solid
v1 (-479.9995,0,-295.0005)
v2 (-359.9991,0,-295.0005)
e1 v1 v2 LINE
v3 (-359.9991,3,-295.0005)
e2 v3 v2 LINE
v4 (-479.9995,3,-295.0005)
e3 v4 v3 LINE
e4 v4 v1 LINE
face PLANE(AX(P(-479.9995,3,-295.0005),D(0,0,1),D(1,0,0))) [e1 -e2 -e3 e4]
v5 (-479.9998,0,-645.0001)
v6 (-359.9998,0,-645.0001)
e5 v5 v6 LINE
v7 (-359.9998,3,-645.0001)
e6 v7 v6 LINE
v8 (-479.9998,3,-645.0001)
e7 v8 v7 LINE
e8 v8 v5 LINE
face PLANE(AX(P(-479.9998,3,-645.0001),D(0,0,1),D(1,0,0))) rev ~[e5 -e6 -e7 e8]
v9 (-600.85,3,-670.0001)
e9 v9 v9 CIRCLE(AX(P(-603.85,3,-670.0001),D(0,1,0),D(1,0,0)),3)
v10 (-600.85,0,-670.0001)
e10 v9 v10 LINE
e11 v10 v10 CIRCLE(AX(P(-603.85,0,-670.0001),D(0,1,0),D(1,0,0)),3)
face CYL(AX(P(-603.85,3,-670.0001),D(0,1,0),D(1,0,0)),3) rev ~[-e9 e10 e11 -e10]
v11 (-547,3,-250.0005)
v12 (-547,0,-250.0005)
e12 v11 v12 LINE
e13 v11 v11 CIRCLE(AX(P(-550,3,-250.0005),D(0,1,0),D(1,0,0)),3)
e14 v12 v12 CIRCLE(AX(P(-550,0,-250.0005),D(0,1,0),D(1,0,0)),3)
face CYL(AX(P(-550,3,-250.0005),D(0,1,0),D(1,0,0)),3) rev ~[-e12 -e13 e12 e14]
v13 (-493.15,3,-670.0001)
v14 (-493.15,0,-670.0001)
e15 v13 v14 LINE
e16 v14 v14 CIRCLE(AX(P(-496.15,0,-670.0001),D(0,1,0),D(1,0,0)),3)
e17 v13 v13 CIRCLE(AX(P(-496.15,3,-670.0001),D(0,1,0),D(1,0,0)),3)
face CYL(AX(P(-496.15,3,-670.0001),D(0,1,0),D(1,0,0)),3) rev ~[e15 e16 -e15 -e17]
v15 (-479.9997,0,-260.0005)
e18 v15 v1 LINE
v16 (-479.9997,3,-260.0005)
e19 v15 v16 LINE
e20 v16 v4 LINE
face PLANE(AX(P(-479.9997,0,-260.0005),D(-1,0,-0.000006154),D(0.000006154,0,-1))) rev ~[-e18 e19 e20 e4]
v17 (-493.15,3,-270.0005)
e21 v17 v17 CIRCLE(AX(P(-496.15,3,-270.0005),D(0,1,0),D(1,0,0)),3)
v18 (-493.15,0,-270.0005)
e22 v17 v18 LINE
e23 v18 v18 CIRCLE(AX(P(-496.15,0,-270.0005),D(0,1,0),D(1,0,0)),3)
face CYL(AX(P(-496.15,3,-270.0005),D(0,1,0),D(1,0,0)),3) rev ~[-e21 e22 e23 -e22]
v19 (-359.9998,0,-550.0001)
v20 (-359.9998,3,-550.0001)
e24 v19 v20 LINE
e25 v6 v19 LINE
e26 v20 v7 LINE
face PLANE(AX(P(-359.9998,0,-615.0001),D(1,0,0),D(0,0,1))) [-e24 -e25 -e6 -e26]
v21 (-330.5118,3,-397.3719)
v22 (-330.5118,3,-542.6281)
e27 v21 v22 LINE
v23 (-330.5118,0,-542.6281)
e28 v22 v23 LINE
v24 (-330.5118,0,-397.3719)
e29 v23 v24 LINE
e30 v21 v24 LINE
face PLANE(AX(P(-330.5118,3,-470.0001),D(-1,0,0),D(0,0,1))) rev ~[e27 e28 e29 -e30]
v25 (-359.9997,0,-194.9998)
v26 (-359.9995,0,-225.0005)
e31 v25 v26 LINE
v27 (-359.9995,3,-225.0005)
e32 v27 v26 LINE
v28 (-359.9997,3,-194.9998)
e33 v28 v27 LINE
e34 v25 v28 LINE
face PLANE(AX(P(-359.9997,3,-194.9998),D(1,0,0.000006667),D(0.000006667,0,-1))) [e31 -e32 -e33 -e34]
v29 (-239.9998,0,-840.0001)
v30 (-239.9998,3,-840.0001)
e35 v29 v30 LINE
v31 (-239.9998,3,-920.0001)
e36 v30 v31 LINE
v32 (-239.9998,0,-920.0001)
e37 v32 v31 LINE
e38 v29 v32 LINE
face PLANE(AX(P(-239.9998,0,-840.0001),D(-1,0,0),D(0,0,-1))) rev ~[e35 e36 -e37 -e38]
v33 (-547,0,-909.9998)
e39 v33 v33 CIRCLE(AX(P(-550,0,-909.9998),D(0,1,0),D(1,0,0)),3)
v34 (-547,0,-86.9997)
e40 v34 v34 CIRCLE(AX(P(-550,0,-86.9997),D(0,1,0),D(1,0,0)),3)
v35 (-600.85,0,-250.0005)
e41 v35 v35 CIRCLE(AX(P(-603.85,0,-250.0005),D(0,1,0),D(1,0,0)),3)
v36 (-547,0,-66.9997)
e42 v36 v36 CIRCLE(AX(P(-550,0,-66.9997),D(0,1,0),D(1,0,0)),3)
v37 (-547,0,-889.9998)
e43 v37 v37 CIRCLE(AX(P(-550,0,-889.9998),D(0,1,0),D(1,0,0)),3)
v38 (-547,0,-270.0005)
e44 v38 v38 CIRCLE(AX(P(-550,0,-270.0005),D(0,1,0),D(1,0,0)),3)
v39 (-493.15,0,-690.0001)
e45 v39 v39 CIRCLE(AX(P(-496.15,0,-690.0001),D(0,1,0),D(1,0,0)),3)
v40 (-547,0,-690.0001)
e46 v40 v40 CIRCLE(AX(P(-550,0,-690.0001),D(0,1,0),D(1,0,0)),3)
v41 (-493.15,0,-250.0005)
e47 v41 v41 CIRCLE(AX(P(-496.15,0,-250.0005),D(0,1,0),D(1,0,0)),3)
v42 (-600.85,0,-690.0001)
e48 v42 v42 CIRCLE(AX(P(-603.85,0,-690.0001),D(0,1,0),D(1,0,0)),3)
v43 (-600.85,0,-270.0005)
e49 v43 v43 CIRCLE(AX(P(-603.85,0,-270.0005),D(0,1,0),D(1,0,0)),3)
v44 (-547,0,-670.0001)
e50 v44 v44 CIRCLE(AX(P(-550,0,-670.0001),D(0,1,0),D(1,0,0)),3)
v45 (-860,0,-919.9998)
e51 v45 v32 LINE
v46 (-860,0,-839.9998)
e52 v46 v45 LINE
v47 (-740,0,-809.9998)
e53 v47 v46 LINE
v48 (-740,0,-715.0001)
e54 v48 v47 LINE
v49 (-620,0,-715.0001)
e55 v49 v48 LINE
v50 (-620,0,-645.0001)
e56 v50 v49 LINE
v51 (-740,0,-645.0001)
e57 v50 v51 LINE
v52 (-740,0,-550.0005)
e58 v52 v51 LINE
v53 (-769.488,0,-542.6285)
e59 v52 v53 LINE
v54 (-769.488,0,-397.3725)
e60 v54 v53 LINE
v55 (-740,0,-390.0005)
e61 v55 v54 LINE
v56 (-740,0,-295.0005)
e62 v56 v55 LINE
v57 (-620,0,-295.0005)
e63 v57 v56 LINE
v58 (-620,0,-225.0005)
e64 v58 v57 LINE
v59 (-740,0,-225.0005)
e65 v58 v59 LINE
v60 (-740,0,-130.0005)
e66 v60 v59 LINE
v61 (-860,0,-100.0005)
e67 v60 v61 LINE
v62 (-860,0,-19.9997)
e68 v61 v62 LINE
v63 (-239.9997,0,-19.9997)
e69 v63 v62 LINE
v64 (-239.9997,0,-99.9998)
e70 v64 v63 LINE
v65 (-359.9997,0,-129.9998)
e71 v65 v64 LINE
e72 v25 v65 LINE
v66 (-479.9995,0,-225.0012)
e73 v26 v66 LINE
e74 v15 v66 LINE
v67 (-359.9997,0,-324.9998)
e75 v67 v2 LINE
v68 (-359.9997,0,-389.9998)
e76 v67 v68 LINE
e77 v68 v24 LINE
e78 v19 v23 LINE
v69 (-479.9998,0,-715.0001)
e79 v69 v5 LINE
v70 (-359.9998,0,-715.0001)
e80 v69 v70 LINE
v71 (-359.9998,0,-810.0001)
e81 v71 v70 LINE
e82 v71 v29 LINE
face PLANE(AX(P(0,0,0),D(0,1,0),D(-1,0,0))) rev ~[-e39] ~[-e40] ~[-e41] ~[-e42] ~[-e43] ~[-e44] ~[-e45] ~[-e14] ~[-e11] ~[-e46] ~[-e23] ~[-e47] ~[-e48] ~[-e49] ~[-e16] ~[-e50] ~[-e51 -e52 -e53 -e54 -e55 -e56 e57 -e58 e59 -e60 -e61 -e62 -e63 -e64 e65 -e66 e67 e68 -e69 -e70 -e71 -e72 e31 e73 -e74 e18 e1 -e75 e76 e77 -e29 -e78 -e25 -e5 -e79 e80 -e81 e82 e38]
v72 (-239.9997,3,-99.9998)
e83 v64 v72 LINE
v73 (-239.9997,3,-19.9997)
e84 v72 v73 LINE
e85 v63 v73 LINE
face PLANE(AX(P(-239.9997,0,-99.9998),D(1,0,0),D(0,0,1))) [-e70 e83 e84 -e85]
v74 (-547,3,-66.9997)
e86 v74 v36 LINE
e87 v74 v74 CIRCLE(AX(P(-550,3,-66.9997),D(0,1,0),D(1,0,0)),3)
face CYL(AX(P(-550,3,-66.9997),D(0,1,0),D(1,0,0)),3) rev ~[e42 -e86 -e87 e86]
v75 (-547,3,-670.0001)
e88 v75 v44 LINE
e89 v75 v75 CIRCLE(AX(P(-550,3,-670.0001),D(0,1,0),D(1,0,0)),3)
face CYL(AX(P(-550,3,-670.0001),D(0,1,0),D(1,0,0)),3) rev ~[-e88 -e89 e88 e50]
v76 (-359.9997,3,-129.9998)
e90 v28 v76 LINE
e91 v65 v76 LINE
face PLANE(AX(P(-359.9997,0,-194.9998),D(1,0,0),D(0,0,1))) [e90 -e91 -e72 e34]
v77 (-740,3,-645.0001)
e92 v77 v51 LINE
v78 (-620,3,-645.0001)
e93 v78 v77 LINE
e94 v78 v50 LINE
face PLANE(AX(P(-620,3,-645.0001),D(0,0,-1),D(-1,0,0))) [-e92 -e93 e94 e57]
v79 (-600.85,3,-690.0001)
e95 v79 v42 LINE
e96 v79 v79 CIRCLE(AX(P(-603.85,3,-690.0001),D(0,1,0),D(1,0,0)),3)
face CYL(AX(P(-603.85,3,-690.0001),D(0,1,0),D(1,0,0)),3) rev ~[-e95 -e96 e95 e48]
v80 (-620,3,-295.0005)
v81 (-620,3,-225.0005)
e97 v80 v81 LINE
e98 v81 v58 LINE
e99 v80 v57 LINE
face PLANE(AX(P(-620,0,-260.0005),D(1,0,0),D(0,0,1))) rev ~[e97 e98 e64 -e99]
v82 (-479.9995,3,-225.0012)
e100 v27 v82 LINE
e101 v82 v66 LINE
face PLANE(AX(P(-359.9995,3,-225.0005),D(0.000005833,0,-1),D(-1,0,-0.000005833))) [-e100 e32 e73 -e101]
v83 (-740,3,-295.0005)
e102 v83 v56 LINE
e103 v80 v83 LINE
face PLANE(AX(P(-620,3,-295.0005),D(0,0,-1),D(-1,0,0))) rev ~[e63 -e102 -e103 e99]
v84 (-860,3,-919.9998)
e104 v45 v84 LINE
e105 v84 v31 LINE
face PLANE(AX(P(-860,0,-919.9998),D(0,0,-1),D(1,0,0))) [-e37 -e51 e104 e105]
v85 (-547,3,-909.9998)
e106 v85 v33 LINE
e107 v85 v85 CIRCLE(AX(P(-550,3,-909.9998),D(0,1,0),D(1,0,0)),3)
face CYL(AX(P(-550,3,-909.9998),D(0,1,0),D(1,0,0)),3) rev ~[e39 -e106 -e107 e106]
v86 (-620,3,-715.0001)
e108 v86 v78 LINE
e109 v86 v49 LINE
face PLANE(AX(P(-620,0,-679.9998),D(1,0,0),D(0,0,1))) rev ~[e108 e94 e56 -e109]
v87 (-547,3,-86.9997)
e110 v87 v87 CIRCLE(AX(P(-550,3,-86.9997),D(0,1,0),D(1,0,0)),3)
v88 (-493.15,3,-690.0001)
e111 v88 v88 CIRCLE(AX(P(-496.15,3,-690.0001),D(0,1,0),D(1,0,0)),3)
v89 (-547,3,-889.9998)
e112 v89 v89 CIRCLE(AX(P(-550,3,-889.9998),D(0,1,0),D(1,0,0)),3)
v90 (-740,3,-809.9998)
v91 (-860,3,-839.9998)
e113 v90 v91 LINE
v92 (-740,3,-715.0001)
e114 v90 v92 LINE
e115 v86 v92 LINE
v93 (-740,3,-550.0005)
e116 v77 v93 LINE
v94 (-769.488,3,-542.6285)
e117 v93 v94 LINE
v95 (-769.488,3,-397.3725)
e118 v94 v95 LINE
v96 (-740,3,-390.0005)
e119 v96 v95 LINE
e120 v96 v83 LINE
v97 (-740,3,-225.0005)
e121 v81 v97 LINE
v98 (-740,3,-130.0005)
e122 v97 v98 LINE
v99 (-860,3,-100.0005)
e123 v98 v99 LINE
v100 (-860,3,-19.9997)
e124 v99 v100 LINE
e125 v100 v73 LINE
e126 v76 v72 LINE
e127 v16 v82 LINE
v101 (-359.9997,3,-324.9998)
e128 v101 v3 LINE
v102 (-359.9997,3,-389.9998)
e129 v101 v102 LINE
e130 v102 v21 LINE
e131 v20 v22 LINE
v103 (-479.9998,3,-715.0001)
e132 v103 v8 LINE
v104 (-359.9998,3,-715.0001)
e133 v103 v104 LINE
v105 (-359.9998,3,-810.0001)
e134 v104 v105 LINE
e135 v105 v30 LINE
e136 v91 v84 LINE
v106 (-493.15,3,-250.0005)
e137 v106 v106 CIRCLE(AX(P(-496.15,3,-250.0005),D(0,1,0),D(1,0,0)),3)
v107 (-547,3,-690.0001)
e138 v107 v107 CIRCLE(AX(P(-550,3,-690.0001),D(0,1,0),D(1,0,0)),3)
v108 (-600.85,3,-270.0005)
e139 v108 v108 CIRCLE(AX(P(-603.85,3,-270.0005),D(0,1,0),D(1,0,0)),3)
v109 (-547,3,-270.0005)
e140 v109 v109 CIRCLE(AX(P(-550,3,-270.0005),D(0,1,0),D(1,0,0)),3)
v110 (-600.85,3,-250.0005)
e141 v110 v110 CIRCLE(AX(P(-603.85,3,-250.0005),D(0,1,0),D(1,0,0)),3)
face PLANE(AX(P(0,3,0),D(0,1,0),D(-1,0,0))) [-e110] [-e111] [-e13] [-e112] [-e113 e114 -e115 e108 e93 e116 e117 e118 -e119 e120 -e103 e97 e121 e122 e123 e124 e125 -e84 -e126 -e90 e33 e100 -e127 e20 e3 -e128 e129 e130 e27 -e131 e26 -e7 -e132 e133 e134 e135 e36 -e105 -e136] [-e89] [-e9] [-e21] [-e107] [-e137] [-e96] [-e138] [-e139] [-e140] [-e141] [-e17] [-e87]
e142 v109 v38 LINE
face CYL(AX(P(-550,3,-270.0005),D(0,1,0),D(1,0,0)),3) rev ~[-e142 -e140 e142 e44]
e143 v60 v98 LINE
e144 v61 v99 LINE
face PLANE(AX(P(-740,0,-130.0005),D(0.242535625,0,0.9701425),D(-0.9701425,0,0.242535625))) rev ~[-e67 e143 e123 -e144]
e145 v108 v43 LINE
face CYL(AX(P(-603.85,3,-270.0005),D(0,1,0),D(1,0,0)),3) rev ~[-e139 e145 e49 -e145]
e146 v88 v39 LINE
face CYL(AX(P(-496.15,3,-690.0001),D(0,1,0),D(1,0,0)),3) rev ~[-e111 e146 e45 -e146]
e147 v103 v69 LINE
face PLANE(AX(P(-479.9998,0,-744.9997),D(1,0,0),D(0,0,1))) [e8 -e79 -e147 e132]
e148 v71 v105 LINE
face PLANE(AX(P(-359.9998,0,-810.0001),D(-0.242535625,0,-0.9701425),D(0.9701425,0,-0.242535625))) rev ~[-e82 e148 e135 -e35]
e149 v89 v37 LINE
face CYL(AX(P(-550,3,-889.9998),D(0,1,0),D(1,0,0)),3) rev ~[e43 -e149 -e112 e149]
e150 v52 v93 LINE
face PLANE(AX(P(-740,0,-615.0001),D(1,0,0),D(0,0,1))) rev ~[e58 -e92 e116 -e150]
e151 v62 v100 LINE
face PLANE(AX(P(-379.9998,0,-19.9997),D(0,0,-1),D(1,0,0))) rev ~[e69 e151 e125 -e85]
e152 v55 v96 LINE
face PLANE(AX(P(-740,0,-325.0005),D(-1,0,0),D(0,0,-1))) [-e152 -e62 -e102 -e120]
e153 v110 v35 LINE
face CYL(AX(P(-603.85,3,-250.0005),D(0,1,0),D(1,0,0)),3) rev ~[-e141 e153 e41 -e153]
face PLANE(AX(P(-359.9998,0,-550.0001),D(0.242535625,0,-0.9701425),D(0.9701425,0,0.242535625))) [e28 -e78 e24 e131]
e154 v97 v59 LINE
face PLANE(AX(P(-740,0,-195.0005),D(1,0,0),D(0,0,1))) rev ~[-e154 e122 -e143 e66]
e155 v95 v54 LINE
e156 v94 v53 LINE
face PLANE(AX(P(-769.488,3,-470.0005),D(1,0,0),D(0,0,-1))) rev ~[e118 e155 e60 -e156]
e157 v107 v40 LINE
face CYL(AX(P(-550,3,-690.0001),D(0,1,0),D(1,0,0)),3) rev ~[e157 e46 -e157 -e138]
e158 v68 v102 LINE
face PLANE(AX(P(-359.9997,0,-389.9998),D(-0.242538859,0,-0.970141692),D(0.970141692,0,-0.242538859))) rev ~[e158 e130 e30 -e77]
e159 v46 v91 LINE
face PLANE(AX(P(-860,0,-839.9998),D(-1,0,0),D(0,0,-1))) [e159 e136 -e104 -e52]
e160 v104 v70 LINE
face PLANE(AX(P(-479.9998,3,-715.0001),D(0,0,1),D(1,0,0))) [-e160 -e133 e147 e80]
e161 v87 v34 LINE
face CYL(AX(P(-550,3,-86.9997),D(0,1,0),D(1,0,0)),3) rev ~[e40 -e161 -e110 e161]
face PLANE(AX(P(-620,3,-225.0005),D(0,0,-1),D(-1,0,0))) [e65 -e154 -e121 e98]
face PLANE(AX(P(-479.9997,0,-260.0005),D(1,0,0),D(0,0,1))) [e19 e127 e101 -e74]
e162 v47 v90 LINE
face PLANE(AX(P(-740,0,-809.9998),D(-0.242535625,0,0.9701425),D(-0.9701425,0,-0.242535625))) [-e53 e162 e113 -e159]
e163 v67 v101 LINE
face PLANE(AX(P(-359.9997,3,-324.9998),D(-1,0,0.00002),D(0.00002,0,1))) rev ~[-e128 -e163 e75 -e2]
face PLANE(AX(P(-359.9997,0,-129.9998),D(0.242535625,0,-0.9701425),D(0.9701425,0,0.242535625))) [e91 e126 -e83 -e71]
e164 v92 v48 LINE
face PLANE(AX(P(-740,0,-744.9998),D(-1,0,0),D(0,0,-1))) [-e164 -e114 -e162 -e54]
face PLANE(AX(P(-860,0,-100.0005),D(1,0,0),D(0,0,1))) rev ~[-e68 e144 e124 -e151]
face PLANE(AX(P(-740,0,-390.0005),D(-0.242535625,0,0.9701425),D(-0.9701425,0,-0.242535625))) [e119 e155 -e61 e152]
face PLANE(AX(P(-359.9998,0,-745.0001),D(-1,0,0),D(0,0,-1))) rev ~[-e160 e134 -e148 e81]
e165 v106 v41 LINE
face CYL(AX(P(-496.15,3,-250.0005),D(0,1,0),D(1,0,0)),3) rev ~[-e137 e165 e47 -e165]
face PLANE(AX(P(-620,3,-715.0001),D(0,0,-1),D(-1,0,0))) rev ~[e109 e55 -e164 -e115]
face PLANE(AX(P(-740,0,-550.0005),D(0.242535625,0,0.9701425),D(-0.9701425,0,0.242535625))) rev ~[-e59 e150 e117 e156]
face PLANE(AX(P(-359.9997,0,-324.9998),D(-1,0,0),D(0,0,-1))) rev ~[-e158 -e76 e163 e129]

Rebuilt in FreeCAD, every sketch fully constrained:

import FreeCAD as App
import Part
import Sketcher
Q = App.Units.Quantity

doc = App.newDocument("Part")
body = doc.addObject("PartDesign::Body", "Body")

sketch1 = body.newObject("Sketcher::SketchObject", "Sketch")
sketch1.AttachmentSupport = (doc.getObject("XZ_Plane"), [""])
sketch1.MapMode = "FlatFace"
sketch1.addGeometry([
    Part.LineSegment(App.Vector(-480, -325, 0), App.Vector(-360, -325, 0)),
    Part.LineSegment(App.Vector(-360, -325, 0), App.Vector(-360, -390, 0)),
    Part.LineSegment(App.Vector(-360, -390, 0), App.Vector(-240, -420, 0)),
    Part.LineSegment(App.Vector(-240, -420, 0), App.Vector(-240, -520, 0)),
    Part.LineSegment(App.Vector(-240, -520, 0), App.Vector(-360, -550, 0)),
    Part.LineSegment(App.Vector(-360, -550, 0), App.Vector(-360, -615, 0)),
    Part.LineSegment(App.Vector(-360, -615, 0), App.Vector(-480, -615, 0)),
    Part.LineSegment(App.Vector(-480, -615, 0), App.Vector(-480, -745, 0)),
    Part.LineSegment(App.Vector(-480, -745, 0), App.Vector(-360, -745, 0)),
    Part.LineSegment(App.Vector(-360, -745, 0), App.Vector(-360, -810, 0)),
    Part.LineSegment(App.Vector(-360, -810, 0), App.Vector(-240, -840, 0)),
    Part.LineSegment(App.Vector(-240, -840, 0), App.Vector(-240, -920, 0)),
    Part.LineSegment(App.Vector(-240, -920, 0), App.Vector(-860, -920, 0)),
    Part.LineSegment(App.Vector(-860, -920, 0), App.Vector(-860, -840, 0)),
    Part.LineSegment(App.Vector(-860, -840, 0), App.Vector(-740, -810, 0)),
    Part.LineSegment(App.Vector(-740, -810, 0), App.Vector(-740, -745, 0)),
    Part.LineSegment(App.Vector(-740, -745, 0), App.Vector(-620, -745, 0)),
    Part.LineSegment(App.Vector(-620, -745, 0), App.Vector(-620, -615, 0)),
    Part.LineSegment(App.Vector(-620, -615, 0), App.Vector(-740, -615, 0)),
    Part.LineSegment(App.Vector(-740, -615, 0), App.Vector(-740, -550, 0)),
    Part.LineSegment(App.Vector(-740, -550, 0), App.Vector(-860, -520, 0)),
    Part.LineSegment(App.Vector(-860, -520, 0), App.Vector(-860, -420, 0)),
    Part.LineSegment(App.Vector(-860, -420, 0), App.Vector(-740, -390, 0)),
    Part.LineSegment(App.Vector(-740, -390, 0), App.Vector(-740, -325, 0)),
    Part.LineSegment(App.Vector(-740, -325, 0), App.Vector(-620, -325, 0)),
    Part.LineSegment(App.Vector(-620, -325, 0), App.Vector(-620, -195, 0)),
    Part.LineSegment(App.Vector(-620, -195, 0), App.Vector(-740, -195, 0)),
    Part.LineSegment(App.Vector(-740, -195, 0), App.Vector(-740, -130, 0)),
    Part.LineSegment(App.Vector(-740, -130, 0), App.Vector(-860, -100, 0)),
    Part.LineSegment(App.Vector(-860, -100, 0), App.Vector(-860, -20, 0)),
    Part.LineSegment(App.Vector(-860, -20, 0), App.Vector(-240, -20, 0)),
    Part.LineSegment(App.Vector(-240, -20, 0), App.Vector(-240, -100, 0)),
    Part.LineSegment(App.Vector(-240, -100, 0), App.Vector(-360, -130, 0)),
    Part.LineSegment(App.Vector(-360, -130, 0), App.Vector(-360, -195, 0)),
    Part.LineSegment(App.Vector(-360, -195, 0), App.Vector(-480, -195, 0)),
    Part.LineSegment(App.Vector(-480, -195, 0), App.Vector(-480, -260, 0)),
    Part.LineSegment(App.Vector(-480, -260, 0), App.Vector(-480, -325, 0)),
], False)
sketch1.addConstraint([
    Sketcher.Constraint("Coincident", 0, 2, 1, 1),
    Sketcher.Constraint("Coincident", 1, 2, 2, 1),
    Sketcher.Constraint("Coincident", 2, 2, 3, 1),
    Sketcher.Constraint("Coincident", 3, 2, 4, 1),
    Sketcher.Constraint("Coincident", 4, 2, 5, 1),
    Sketcher.Constraint("Coincident", 5, 2, 6, 1),
    Sketcher.Constraint("Coincident", 6, 2, 7, 1),
    Sketcher.Constraint("Coincident", 7, 2, 8, 1),
    Sketcher.Constraint("Coincident", 8, 2, 9, 1),
    Sketcher.Constraint("Coincident", 9, 2, 10, 1),
    Sketcher.Constraint("Coincident", 10, 2, 11, 1),
    Sketcher.Constraint("Coincident", 11, 2, 12, 1),
    Sketcher.Constraint("Coincident", 12, 2, 13, 1),
    Sketcher.Constraint("Coincident", 13, 2, 14, 1),
    Sketcher.Constraint("Coincident", 14, 2, 15, 1),
    Sketcher.Constraint("Coincident", 15, 2, 16, 1),
    Sketcher.Constraint("Coincident", 16, 2, 17, 1),
    Sketcher.Constraint("Coincident", 17, 2, 18, 1),
    Sketcher.Constraint("Coincident", 18, 2, 19, 1),
    Sketcher.Constraint("Coincident", 19, 2, 20, 1),
    Sketcher.Constraint("Coincident", 20, 2, 21, 1),
    Sketcher.Constraint("Coincident", 21, 2, 22, 1),
    Sketcher.Constraint("Coincident", 22, 2, 23, 1),
    Sketcher.Constraint("Coincident", 23, 2, 24, 1),
    Sketcher.Constraint("Coincident", 24, 2, 25, 1),
    Sketcher.Constraint("Coincident", 25, 2, 26, 1),
    Sketcher.Constraint("Coincident", 26, 2, 27, 1),
    Sketcher.Constraint("Coincident", 27, 2, 28, 1),
    Sketcher.Constraint("Coincident", 28, 2, 29, 1),
    Sketcher.Constraint("Coincident", 29, 2, 30, 1),
    Sketcher.Constraint("Coincident", 30, 2, 31, 1),
    Sketcher.Constraint("Coincident", 31, 2, 32, 1),
    Sketcher.Constraint("Coincident", 32, 2, 33, 1),
    Sketcher.Constraint("Coincident", 33, 2, 34, 1),
    Sketcher.Constraint("Coincident", 34, 2, 35, 1),
    Sketcher.Constraint("Coincident", 35, 2, 36, 1),
    Sketcher.Constraint("Coincident", 36, 2, 0, 1),
    Sketcher.Constraint("Vertical", 1),
    Sketcher.Constraint("Vertical", 3),
    Sketcher.Constraint("Vertical", 5),
    Sketcher.Constraint("Horizontal", 6),
    Sketcher.Constraint("Vertical", 7),
    Sketcher.Constraint("Vertical", 9),
    Sketcher.Constraint("Vertical", 11),
    Sketcher.Constraint("Horizontal", 12),
    Sketcher.Constraint("Vertical", 13),
    Sketcher.Constraint("Vertical", 15),
    Sketcher.Constraint("Vertical", 17),
    Sketcher.Constraint("Horizontal", 18),
    Sketcher.Constraint("Vertical", 19),
    Sketcher.Constraint("Vertical", 21),
    Sketcher.Constraint("Vertical", 23),
    Sketcher.Constraint("Horizontal", 24),
    Sketcher.Constraint("Vertical", 25),
    Sketcher.Constraint("Horizontal", 26),
    Sketcher.Constraint("Vertical", 27),
    Sketcher.Constraint("Vertical", 29),
    Sketcher.Constraint("Horizontal", 30),
    Sketcher.Constraint("Vertical", 31),
    Sketcher.Constraint("Vertical", 33),
    Sketcher.Constraint("Vertical", 35),
    Sketcher.Constraint("Parallel", 0, 8),
    Sketcher.Constraint("Parallel", 2, 10),
    Sketcher.Constraint("Parallel", 4, 14),
    Sketcher.Constraint("Parallel", 8, 16),
    Sketcher.Constraint("Parallel", 10, 20),
    Sketcher.Constraint("Parallel", 14, 22),
    Sketcher.Constraint("Parallel", 20, 28),
    Sketcher.Constraint("Parallel", 22, 32),
    Sketcher.Constraint("Parallel", 16, 34),
    Sketcher.Constraint("Perpendicular", 34, 36),
    Sketcher.Constraint("Horizontal", 7, 2, 15, 2),
    Sketcher.Constraint("Horizontal", 6, 2, 17, 2),
    Sketcher.Constraint("Horizontal", 26, 2, 34, 2),
    Sketcher.Constraint("Horizontal", 24, 2, 36, 2),
    Sketcher.Constraint("Vertical", 1, 2, 4, 2),
    Sketcher.Constraint("Vertical", 5, 2, 8, 2),
    Sketcher.Constraint("Vertical", 3, 2, 10, 2),
    Sketcher.Constraint("Vertical", 15, 2, 18, 2),
    Sketcher.Constraint("Vertical", 13, 2, 20, 2),
    Sketcher.Constraint("Vertical", 19, 2, 22, 2),
    Sketcher.Constraint("Vertical", 17, 2, 24, 2),
    Sketcher.Constraint("Vertical", 23, 2, 26, 2),
    Sketcher.Constraint("Vertical", 21, 2, 28, 2),
    Sketcher.Constraint("Vertical", 11, 2, 30, 2),
    Sketcher.Constraint("Vertical", 9, 2, 32, 2),
    Sketcher.Constraint("Vertical", 7, 2, 34, 2),
    Sketcher.Constraint("Equal", 6, 18),
    Sketcher.Constraint("Equal", 1, 5),
    Sketcher.Constraint("Equal", 5, 9),
    Sketcher.Constraint("Equal", 11, 13),
    Sketcher.Constraint("Equal", 9, 15),
    Sketcher.Constraint("Equal", 3, 21),
    Sketcher.Constraint("Equal", 15, 23),
    Sketcher.Constraint("Equal", 17, 25),
    Sketcher.Constraint("Equal", 23, 27),
    Sketcher.Constraint("Equal", 13, 31),
    Sketcher.Constraint("Equal", 27, 33),
    Sketcher.Constraint("Equal", 33, 35),
    Sketcher.Constraint("Equal", 2, 4),
    Sketcher.Constraint("Equal", 10, 14),
    Sketcher.Constraint("DistanceY", 11, 2, 11, 1, Q("3.1496 in")),
    Sketcher.Constraint("DistanceY", 1, 2, 1, 1, 65.0),
    Sketcher.Constraint("Distance", 36, 65.0),
    Sketcher.Constraint("DistanceY", 3, 2, 3, 1, Q("3.937 in")),
    Sketcher.Constraint("DistanceX", 6, 2, 6, 1, Q("4.7244 in")),
    Sketcher.Constraint("DistanceY", 31, 2, -1, 1, Q("3.937 in")),
    Sketcher.Constraint("Distance", 2, Q("4.8698 in")),
    Sketcher.Constraint("DistanceX", 12, 2, 12, 1, 620.0002),
    Sketcher.Constraint("DistanceX", 2, 2, -1, 1, Q("9.4488 in")),
    Sketcher.Constraint("DistanceY", 5, 2, -1, 1, Q("24.2126 in")),
])
pad1 = body.newObject("PartDesign::Pad", "Pad")
pad1.Profile = sketch1
pad1.Length = Q("0.1181102 in")
pad1.Reversed = True

sketch2 = body.newObject("Sketcher::SketchObject", "Sketch001")
sketch2.AttachmentSupport = (doc.getObject("XZ_Plane"), [""])
sketch2.MapMode = "FlatFace"
sketch2.AttachmentOffset = App.Placement(App.Vector(0, 0, -0.1181102 * 25.4), App.Rotation())
sketch2.addGeometry([
    Part.LineSegment(App.Vector(-620, -195, 0), App.Vector(-620, -225, 0)),
    Part.LineSegment(App.Vector(-620, -225, 0), App.Vector(-740, -225, 0)),
    Part.LineSegment(App.Vector(-740, -225, 0), App.Vector(-740, -195, 0)),
    Part.LineSegment(App.Vector(-740, -195, 0), App.Vector(-620, -195, 0)),
    Part.LineSegment(App.Vector(-620, -295, 0), App.Vector(-620, -325, 0)),
    Part.LineSegment(App.Vector(-620, -325, 0), App.Vector(-740, -325, 0)),
    Part.LineSegment(App.Vector(-740, -325, 0), App.Vector(-740, -295, 0)),
    Part.LineSegment(App.Vector(-740, -295, 0), App.Vector(-620, -295, 0)),
    Part.LineSegment(App.Vector(-480, -325, 0), App.Vector(-480, -295, 0)),
    Part.LineSegment(App.Vector(-480, -295, 0), App.Vector(-360, -295, 0)),
    Part.LineSegment(App.Vector(-360, -295, 0), App.Vector(-360, -325, 0)),
    Part.LineSegment(App.Vector(-360, -325, 0), App.Vector(-480, -325, 0)),
    Part.LineSegment(App.Vector(-480, -225, 0), App.Vector(-480, -195, 0)),
    Part.LineSegment(App.Vector(-480, -195, 0), App.Vector(-360, -195, 0)),
    Part.LineSegment(App.Vector(-360, -195, 0), App.Vector(-360, -225, 0)),
    Part.LineSegment(App.Vector(-360, -225, 0), App.Vector(-480, -225, 0)),
    Part.LineSegment(App.Vector(-620, -615, 0), App.Vector(-620, -645, 0)),
    Part.LineSegment(App.Vector(-620, -645, 0), App.Vector(-740, -645, 0)),
    Part.LineSegment(App.Vector(-740, -645, 0), App.Vector(-740, -615, 0)),
    Part.LineSegment(App.Vector(-740, -615, 0), App.Vector(-620, -615, 0)),
    Part.LineSegment(App.Vector(-620, -715, 0), App.Vector(-620, -745, 0)),
    Part.LineSegment(App.Vector(-620, -745, 0), App.Vector(-740, -745, 0)),
    Part.LineSegment(App.Vector(-740, -745, 0), App.Vector(-740, -715, 0)),
    Part.LineSegment(App.Vector(-740, -715, 0), App.Vector(-620, -715, 0)),
    Part.LineSegment(App.Vector(-480, -745, 0), App.Vector(-480, -715, 0)),
    Part.LineSegment(App.Vector(-480, -715, 0), App.Vector(-360, -715, 0)),
    Part.LineSegment(App.Vector(-360, -715, 0), App.Vector(-360, -745, 0)),
    Part.LineSegment(App.Vector(-360, -745, 0), App.Vector(-480, -745, 0)),
    Part.LineSegment(App.Vector(-480, -645, 0), App.Vector(-480, -615, 0)),
    Part.LineSegment(App.Vector(-480, -615, 0), App.Vector(-360, -615, 0)),
    Part.LineSegment(App.Vector(-360, -615, 0), App.Vector(-360, -645, 0)),
    Part.LineSegment(App.Vector(-360, -645, 0), App.Vector(-480, -645, 0)),
], False)
sketch2.addConstraint([
    Sketcher.Constraint("Coincident", 0, 2, 1, 1),
    Sketcher.Constraint("Coincident", 1, 2, 2, 1),
    Sketcher.Constraint("Coincident", 2, 2, 3, 1),
    Sketcher.Constraint("Coincident", 3, 2, 0, 1),
    Sketcher.Constraint("Coincident", 4, 2, 5, 1),
    Sketcher.Constraint("Coincident", 5, 2, 6, 1),
    Sketcher.Constraint("Coincident", 6, 2, 7, 1),
    Sketcher.Constraint("Coincident", 7, 2, 4, 1),
    Sketcher.Constraint("Coincident", 8, 2, 9, 1),
    Sketcher.Constraint("Coincident", 9, 2, 10, 1),
    Sketcher.Constraint("Coincident", 10, 2, 11, 1),
    Sketcher.Constraint("Coincident", 11, 2, 8, 1),
    Sketcher.Constraint("Coincident", 12, 2, 13, 1),
    Sketcher.Constraint("Coincident", 13, 2, 14, 1),
    Sketcher.Constraint("Coincident", 14, 2, 15, 1),
    Sketcher.Constraint("Coincident", 15, 2, 12, 1),
    Sketcher.Constraint("Coincident", 16, 2, 17, 1),
    Sketcher.Constraint("Coincident", 17, 2, 18, 1),
    Sketcher.Constraint("Coincident", 18, 2, 19, 1),
    Sketcher.Constraint("Coincident", 19, 2, 16, 1),
    Sketcher.Constraint("Coincident", 20, 2, 21, 1),
    Sketcher.Constraint("Coincident", 21, 2, 22, 1),
    Sketcher.Constraint("Coincident", 22, 2, 23, 1),
    Sketcher.Constraint("Coincident", 23, 2, 20, 1),
    Sketcher.Constraint("Coincident", 24, 2, 25, 1),
    Sketcher.Constraint("Coincident", 25, 2, 26, 1),
    Sketcher.Constraint("Coincident", 26, 2, 27, 1),
    Sketcher.Constraint("Coincident", 27, 2, 24, 1),
    Sketcher.Constraint("Coincident", 28, 2, 29, 1),
    Sketcher.Constraint("Coincident", 29, 2, 30, 1),
    Sketcher.Constraint("Coincident", 30, 2, 31, 1),
    Sketcher.Constraint("Coincident", 31, 2, 28, 1),
    Sketcher.Constraint("Vertical", 0),
    Sketcher.Constraint("Horizontal", 1),
    Sketcher.Constraint("Vertical", 2),
    Sketcher.Constraint("Horizontal", 3),
    Sketcher.Constraint("Vertical", 4),
    Sketcher.Constraint("Horizontal", 5),
    Sketcher.Constraint("Vertical", 6),
    Sketcher.Constraint("Horizontal", 7),
    Sketcher.Constraint("Vertical", 8),
    Sketcher.Constraint("Horizontal", 9),
    Sketcher.Constraint("Vertical", 12),
    Sketcher.Constraint("Vertical", 16),
    Sketcher.Constraint("Horizontal", 17),
    Sketcher.Constraint("Vertical", 18),
    Sketcher.Constraint("Horizontal", 19),
    Sketcher.Constraint("Vertical", 20),
    Sketcher.Constraint("Vertical", 22),
    Sketcher.Constraint("Horizontal", 23),
    Sketcher.Constraint("Vertical", 24),
    Sketcher.Constraint("Horizontal", 25),
    Sketcher.Constraint("Vertical", 26),
    Sketcher.Constraint("Horizontal", 27),
    Sketcher.Constraint("Vertical", 28),
    Sketcher.Constraint("Horizontal", 29),
    Sketcher.Constraint("Vertical", 30),
    Sketcher.Constraint("Horizontal", 31),
    Sketcher.Constraint("Perpendicular", 10, 11),
    Sketcher.Constraint("Parallel", 11, 13),
    Sketcher.Constraint("Perpendicular", 13, 14),
    Sketcher.Constraint("Perpendicular", 14, 15),
    Sketcher.Constraint("Parallel", 15, 21),
    Sketcher.Constraint("Horizontal", 7, 2, 8, 2),
    Sketcher.Constraint("Horizontal", 5, 2, 11, 2),
    Sketcher.Constraint("Horizontal", 3, 2, 12, 2),
    Sketcher.Constraint("Horizontal", 1, 2, 14, 2),
    Sketcher.Constraint("Horizontal", 23, 2, 24, 2),
    Sketcher.Constraint("Horizontal", 20, 2, 26, 2),
    Sketcher.Constraint("Horizontal", 19, 2, 28, 2),
    Sketcher.Constraint("Horizontal", 17, 2, 30, 2),
    Sketcher.Constraint("Vertical", 3, 2, 4, 2),
    Sketcher.Constraint("Vertical", 2, 2, 5, 2),
    Sketcher.Constraint("Vertical", 10, 2, 13, 2),
    Sketcher.Constraint("Vertical", 8, 2, 15, 2),
    Sketcher.Constraint("Vertical", 7, 2, 16, 2),
    Sketcher.Constraint("Vertical", 6, 2, 17, 2),
    Sketcher.Constraint("Vertical", 19, 2, 20, 2),
    Sketcher.Constraint("Vertical", 18, 2, 21, 2),
    Sketcher.Constraint("Vertical", 12, 2, 24, 2),
    Sketcher.Constraint("Vertical", 13, 2, 25, 2),
    Sketcher.Constraint("Vertical", 27, 2, 28, 2),
    Sketcher.Constraint("Vertical", 26, 2, 29, 2),
    Sketcher.Constraint("Equal", 23, 25),
    Sketcher.Constraint("Equal", 2, 4),
    Sketcher.Constraint("Equal", 8, 16),
    Sketcher.Constraint("Equal", 18, 20),
    Sketcher.Constraint("Equal", 13, 15),
    Sketcher.Constraint("DistanceX", 1, 2, 1, 1, Q("4.7244 in")),
    Sketcher.Constraint("DistanceY", 0, 2, 0, 1, Q("1.1811 in")),
    Sketcher.Constraint("DistanceY", 4, 2, 0, 2, Q("3.937 in")),
    Sketcher.Constraint("DistanceY", 20, 2, 16, 2, Q("3.937 in")),
    Sketcher.Constraint("DistanceY", 4, 2, -1, 1, Q("12.7953 in")),
    Sketcher.Constraint("DistanceX", 9, 2, -1, 1, Q("14.1732 in")),
    Sketcher.Constraint("DistanceY", 16, 2, -1, 1, Q("25.3937 in")),
    Sketcher.Constraint("DistanceX", 0, 2, -1, 1, 620.0),
])
pad2 = body.newObject("PartDesign::Pad", "Pad001")
pad2.Profile = sketch2
pad2.Length = Q("0.1181102 in")

sketch3 = body.newObject("Sketcher::SketchObject", "Sketch002")
sketch3.AttachmentSupport = (doc.getObject("XZ_Plane"), [""])
sketch3.MapMode = "FlatFace"
sketch3.AttachmentOffset = App.Placement(App.Vector(0, 0, -0.1181102 * 25.4), App.Rotation())
sketch3.addGeometry([
    Part.Circle(App.Vector(-550, -67, 0), App.Vector(0, 0, 1), 3),
    Part.Circle(App.Vector(-550, -87, 0), App.Vector(0, 0, 1), 3),
    Part.Circle(App.Vector(-496.1, -250, 0), App.Vector(0, 0, 1), 3),
    Part.Circle(App.Vector(-496.1, -270, 0), App.Vector(0, 0, 1), 3),
    Part.Circle(App.Vector(-550, -250, 0), App.Vector(0, 0, 1), 3),
    Part.Circle(App.Vector(-550, -270, 0), App.Vector(0, 0, 1), 3),
    Part.Circle(App.Vector(-603.9, -250, 0), App.Vector(0, 0, 1), 3),
    Part.Circle(App.Vector(-603.9, -270, 0), App.Vector(0, 0, 1), 3),
    Part.Circle(App.Vector(-496.1, -670, 0), App.Vector(0, 0, 1), 3),
    Part.Circle(App.Vector(-496.1, -690, 0), App.Vector(0, 0, 1), 3),
    Part.Circle(App.Vector(-550, -670, 0), App.Vector(0, 0, 1), 3),
    Part.Circle(App.Vector(-550, -690, 0), App.Vector(0, 0, 1), 3),
    Part.Circle(App.Vector(-603.9, -670, 0), App.Vector(0, 0, 1), 3),
    Part.Circle(App.Vector(-603.9, -690, 0), App.Vector(0, 0, 1), 3),
    Part.Circle(App.Vector(-550, -890, 0), App.Vector(0, 0, 1), 3),
    Part.Circle(App.Vector(-550, -910, 0), App.Vector(0, 0, 1), 3),
], False)
sketch3.addConstraint([
    Sketcher.Constraint("Equal", 0, 1),
    Sketcher.Constraint("Equal", 1, 2),
    Sketcher.Constraint("Equal", 2, 3),
    Sketcher.Constraint("Equal", 3, 4),
    Sketcher.Constraint("Equal", 4, 5),
    Sketcher.Constraint("Equal", 5, 6),
    Sketcher.Constraint("Equal", 6, 7),
    Sketcher.Constraint("Equal", 7, 8),
    Sketcher.Constraint("Equal", 8, 9),
    Sketcher.Constraint("Equal", 9, 10),
    Sketcher.Constraint("Equal", 10, 11),
    Sketcher.Constraint("Equal", 11, 12),
    Sketcher.Constraint("Equal", 12, 13),
    Sketcher.Constraint("Equal", 13, 14),
    Sketcher.Constraint("Equal", 14, 15),
    Sketcher.Constraint("Horizontal", 2, 3, 4, 3),
    Sketcher.Constraint("Horizontal", 3, 3, 5, 3),
    Sketcher.Constraint("Horizontal", 4, 3, 6, 3),
    Sketcher.Constraint("Horizontal", 5, 3, 7, 3),
    Sketcher.Constraint("Horizontal", 8, 3, 10, 3),
    Sketcher.Constraint("Horizontal", 9, 3, 11, 3),
    Sketcher.Constraint("Horizontal", 10, 3, 12, 3),
    Sketcher.Constraint("Horizontal", 11, 3, 13, 3),
    Sketcher.Constraint("Vertical", 0, 3, 1, 3),
    Sketcher.Constraint("Vertical", 2, 3, 3, 3),
    Sketcher.Constraint("Vertical", 1, 3, 4, 3),
    Sketcher.Constraint("Vertical", 4, 3, 5, 3),
    Sketcher.Constraint("Vertical", 6, 3, 7, 3),
    Sketcher.Constraint("Vertical", 3, 3, 8, 3),
    Sketcher.Constraint("Vertical", 8, 3, 9, 3),
    Sketcher.Constraint("Vertical", 5, 3, 10, 3),
    Sketcher.Constraint("Vertical", 10, 3, 11, 3),
    Sketcher.Constraint("Vertical", 7, 3, 12, 3),
    Sketcher.Constraint("Vertical", 12, 3, 13, 3),
    Sketcher.Constraint("Vertical", 11, 3, 14, 3),
    Sketcher.Constraint("Vertical", 14, 3, 15, 3),
    Sketcher.Constraint("Diameter", 0, 6.0),
    Sketcher.Constraint("DistanceY", 14, 3, 11, 3, Q("7.874 in")),
    Sketcher.Constraint("DistanceY", 1, 3, 0, 3, Q("0.7874 in")),
    Sketcher.Constraint("DistanceY", 3, 3, 2, 3, Q("0.7874 in")),
    Sketcher.Constraint("DistanceY", 9, 3, 8, 3, Q("0.7874 in")),
    Sketcher.Constraint("DistanceY", 15, 3, 14, 3, Q("0.7874 in")),
    Sketcher.Constraint("DistanceX", 0, 3, -1, 1, 550.0),
    Sketcher.Constraint("DistanceY", 0, 3, -1, 1, 66.9997),
    Sketcher.Constraint("DistanceX", 2, 3, -1, 1, 496.15),
    Sketcher.Constraint("DistanceY", 2, 3, -1, 1, 250.0005),
    Sketcher.Constraint("DistanceX", 6, 3, -1, 1, 603.85),
    Sketcher.Constraint("DistanceY", 8, 3, -1, 1, 670.0),
])
pocket1 = body.newObject("PartDesign::Pocket", "Pocket")
pocket1.Profile = sketch3
pocket1.Length = Q("0.1181102 in")
pocket1.Reversed = True

sketch4 = body.newObject("Sketcher::SketchObject", "Sketch003")
sketch4.AttachmentSupport = (doc.getObject("XZ_Plane"), [""])
sketch4.MapMode = "FlatFace"
sketch4.AttachmentOffset = App.Placement(App.Vector(0, 0, -0.1181102 * 25.4), App.Rotation())
sketch4.addGeometry([
    Part.LineSegment(App.Vector(-331, -397, 0), App.Vector(-240, -420, 0)),
    Part.LineSegment(App.Vector(-240, -420, 0), App.Vector(-240, -520, 0)),
    Part.LineSegment(App.Vector(-240, -520, 0), App.Vector(-331, -543, 0)),
    Part.LineSegment(App.Vector(-331, -543, 0), App.Vector(-331, -397, 0)),
    Part.LineSegment(App.Vector(-769, -543, 0), App.Vector(-860, -520, 0)),
    Part.LineSegment(App.Vector(-860, -520, 0), App.Vector(-860, -420, 0)),
    Part.LineSegment(App.Vector(-860, -420, 0), App.Vector(-769, -397, 0)),
    Part.LineSegment(App.Vector(-769, -397, 0), App.Vector(-769, -543, 0)),
], False)
sketch4.addConstraint([
    Sketcher.Constraint("Coincident", 0, 2, 1, 1),
    Sketcher.Constraint("Coincident", 1, 2, 2, 1),
    Sketcher.Constraint("Coincident", 2, 2, 3, 1),
    Sketcher.Constraint("Coincident", 3, 2, 0, 1),
    Sketcher.Constraint("Coincident", 4, 2, 5, 1),
    Sketcher.Constraint("Coincident", 5, 2, 6, 1),
    Sketcher.Constraint("Coincident", 6, 2, 7, 1),
    Sketcher.Constraint("Coincident", 7, 2, 4, 1),
    Sketcher.Constraint("Vertical", 1),
    Sketcher.Constraint("Vertical", 3),
    Sketcher.Constraint("Vertical", 5),
    Sketcher.Constraint("Vertical", 7),
    Sketcher.Constraint("Parallel", 0, 4),
    Sketcher.Constraint("Parallel", 2, 6),
    Sketcher.Constraint("Equal", 1, 5),
    Sketcher.Constraint("Equal", 0, 2),
    Sketcher.Constraint("Equal", 2, 4),
    Sketcher.Constraint("DistanceY", 5, 2, 0, 2, Q("0 in")),
    Sketcher.Constraint("DistanceY", 1, 2, 1, 1, Q("3.937 in")),
    Sketcher.Constraint("DistanceY", 3, 1, 3, 2, Q("5.718748 in")),
    Sketcher.Constraint("DistanceX", 4, 2, 2, 2, Q("20.846 in")),
    Sketcher.Constraint("DistanceX", 0, 2, -1, 1, Q("9.4488 in")),
    Sketcher.Constraint("DistanceY", 2, 2, -1, 1, Q("21.3633 in")),
    Sketcher.Constraint("Distance", 0, 93.2977),
])
pocket2 = body.newObject("PartDesign::Pocket", "Pocket001")
pocket2.Profile = sketch4
pocket2.Length = Q("0.1181102 in")
pocket2.Reversed = True

doc.recompute()
